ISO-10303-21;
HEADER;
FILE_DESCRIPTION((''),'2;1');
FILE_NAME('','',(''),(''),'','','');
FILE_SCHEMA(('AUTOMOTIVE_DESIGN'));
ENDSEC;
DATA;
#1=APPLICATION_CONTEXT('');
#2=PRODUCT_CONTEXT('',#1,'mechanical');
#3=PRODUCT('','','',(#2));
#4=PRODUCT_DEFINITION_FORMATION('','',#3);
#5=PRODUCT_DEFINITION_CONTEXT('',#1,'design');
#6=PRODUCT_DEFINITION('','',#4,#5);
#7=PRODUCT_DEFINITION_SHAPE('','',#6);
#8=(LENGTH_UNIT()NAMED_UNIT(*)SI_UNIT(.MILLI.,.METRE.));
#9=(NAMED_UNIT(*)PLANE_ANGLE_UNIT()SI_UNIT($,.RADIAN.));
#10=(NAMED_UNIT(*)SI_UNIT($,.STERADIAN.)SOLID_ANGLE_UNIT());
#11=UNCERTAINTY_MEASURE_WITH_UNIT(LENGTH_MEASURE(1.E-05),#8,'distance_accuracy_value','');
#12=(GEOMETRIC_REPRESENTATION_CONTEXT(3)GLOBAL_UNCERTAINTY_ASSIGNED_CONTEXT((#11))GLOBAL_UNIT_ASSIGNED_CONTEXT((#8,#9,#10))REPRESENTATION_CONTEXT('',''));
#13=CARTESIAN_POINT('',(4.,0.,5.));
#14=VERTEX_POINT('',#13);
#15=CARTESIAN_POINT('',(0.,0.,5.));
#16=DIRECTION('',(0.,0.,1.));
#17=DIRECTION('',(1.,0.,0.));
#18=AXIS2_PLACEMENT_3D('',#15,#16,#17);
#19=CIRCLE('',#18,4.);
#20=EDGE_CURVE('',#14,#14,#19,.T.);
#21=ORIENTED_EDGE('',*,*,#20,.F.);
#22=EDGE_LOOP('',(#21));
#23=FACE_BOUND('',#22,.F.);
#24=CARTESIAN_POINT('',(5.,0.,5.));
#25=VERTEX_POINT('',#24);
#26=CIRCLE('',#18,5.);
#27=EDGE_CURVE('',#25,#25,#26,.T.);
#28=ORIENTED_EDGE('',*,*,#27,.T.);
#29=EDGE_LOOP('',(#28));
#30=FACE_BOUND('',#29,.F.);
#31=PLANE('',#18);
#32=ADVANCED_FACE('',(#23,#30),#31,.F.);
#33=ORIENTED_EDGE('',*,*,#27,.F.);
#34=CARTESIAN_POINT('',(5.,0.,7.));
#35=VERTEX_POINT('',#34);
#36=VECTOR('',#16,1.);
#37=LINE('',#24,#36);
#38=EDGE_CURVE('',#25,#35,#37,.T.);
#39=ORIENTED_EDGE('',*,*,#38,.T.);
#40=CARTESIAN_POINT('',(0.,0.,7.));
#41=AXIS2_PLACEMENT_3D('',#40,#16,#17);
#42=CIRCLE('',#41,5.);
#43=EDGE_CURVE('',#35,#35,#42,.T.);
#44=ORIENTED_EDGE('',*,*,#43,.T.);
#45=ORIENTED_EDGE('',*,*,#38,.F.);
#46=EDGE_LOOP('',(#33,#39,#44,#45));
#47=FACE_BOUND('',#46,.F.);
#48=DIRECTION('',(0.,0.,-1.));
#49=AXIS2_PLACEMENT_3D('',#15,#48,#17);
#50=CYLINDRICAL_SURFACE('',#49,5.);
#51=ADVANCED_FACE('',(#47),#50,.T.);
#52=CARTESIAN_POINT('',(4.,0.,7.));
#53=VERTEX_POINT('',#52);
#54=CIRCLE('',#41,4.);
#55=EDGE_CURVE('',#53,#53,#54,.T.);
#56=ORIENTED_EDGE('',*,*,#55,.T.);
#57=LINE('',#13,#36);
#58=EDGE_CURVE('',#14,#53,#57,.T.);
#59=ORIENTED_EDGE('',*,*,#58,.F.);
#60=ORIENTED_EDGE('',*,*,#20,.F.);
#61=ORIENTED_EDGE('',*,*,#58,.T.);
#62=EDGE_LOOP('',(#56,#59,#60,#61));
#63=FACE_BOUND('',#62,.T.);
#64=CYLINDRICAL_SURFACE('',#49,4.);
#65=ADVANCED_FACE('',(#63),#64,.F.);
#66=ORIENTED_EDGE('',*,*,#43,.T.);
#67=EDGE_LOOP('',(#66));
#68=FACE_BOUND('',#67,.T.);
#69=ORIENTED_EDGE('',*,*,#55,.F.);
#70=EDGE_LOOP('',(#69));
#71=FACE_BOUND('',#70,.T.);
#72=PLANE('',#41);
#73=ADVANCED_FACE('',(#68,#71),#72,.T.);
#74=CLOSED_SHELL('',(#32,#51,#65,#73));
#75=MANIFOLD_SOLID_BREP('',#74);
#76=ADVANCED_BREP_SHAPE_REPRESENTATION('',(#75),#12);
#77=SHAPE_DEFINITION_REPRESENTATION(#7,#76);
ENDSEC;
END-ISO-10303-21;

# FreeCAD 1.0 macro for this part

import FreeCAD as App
import Part
import Sketcher

V = App.Vector

doc = App.newDocument("Part")
body = doc.addObject("PartDesign::Body", "Body")

# Sketch on XY plane
sketch1 = body.newObject("Sketcher::SketchObject", "Sketch")
sketch1.AttachmentSupport = (doc.getObject("XY_Plane"), [""])
sketch1.MapMode = "FlatFace"
sketch1.AttachmentOffset = App.Placement(V(0, 0, -6), App.Rotation())
sketch1.addGeometry(Part.Circle(V(0, 0, 0), V(0, 0, 1), 4), False)
sketch1.addConstraint(Sketcher.Constraint("Coincident", 0, 3, -1, 1))
sketch1.addConstraint(Sketcher.Constraint("Diameter", 0, 8.0))
pad1 = body.newObject("PartDesign::Pad", "Pad")
pad1.Profile = sketch1
pad1.Length = 2
body2 = doc.addObject("PartDesign::Body", "Body001")

# Sketch on XY plane
sketch2 = body2.newObject("Sketcher::SketchObject", "Sketch001")
sketch2.AttachmentSupport = (doc.getObject("XY_Plane001"), [""])
sketch2.MapMode = "FlatFace"
sketch2.AttachmentOffset = App.Placement(V(0, 0, -6), App.Rotation())
sketch2.addGeometry(Part.Circle(V(0, 0, 0), V(0, 0, 1), 5), False)
sketch2.addConstraint(Sketcher.Constraint("Coincident", 0, 3, -1, 1))
sketch2.addConstraint(Sketcher.Constraint("Diameter", 0, 10.0))
pad2 = body2.newObject("PartDesign::Pad", "Pad001")
pad2.Profile = sketch2
pad2.Length = 2
doc.recompute()

boolean = body2.newObject("PartDesign::Boolean", "Boolean")
boolean.Type = "Cut"
boolean.addObjects([body])
body3 = doc.addObject("PartDesign::Body", "Body002")
doc.recompute()

body2.Placement = App.Placement(V(0, 0, 11), App.Rotation(V(0, 0, 1), 0))
boolean2 = body3.newObject("PartDesign::Boolean", "Boolean001")
boolean2.Type = "Fuse"
boolean2.addObjects([body2])

doc.recompute()
